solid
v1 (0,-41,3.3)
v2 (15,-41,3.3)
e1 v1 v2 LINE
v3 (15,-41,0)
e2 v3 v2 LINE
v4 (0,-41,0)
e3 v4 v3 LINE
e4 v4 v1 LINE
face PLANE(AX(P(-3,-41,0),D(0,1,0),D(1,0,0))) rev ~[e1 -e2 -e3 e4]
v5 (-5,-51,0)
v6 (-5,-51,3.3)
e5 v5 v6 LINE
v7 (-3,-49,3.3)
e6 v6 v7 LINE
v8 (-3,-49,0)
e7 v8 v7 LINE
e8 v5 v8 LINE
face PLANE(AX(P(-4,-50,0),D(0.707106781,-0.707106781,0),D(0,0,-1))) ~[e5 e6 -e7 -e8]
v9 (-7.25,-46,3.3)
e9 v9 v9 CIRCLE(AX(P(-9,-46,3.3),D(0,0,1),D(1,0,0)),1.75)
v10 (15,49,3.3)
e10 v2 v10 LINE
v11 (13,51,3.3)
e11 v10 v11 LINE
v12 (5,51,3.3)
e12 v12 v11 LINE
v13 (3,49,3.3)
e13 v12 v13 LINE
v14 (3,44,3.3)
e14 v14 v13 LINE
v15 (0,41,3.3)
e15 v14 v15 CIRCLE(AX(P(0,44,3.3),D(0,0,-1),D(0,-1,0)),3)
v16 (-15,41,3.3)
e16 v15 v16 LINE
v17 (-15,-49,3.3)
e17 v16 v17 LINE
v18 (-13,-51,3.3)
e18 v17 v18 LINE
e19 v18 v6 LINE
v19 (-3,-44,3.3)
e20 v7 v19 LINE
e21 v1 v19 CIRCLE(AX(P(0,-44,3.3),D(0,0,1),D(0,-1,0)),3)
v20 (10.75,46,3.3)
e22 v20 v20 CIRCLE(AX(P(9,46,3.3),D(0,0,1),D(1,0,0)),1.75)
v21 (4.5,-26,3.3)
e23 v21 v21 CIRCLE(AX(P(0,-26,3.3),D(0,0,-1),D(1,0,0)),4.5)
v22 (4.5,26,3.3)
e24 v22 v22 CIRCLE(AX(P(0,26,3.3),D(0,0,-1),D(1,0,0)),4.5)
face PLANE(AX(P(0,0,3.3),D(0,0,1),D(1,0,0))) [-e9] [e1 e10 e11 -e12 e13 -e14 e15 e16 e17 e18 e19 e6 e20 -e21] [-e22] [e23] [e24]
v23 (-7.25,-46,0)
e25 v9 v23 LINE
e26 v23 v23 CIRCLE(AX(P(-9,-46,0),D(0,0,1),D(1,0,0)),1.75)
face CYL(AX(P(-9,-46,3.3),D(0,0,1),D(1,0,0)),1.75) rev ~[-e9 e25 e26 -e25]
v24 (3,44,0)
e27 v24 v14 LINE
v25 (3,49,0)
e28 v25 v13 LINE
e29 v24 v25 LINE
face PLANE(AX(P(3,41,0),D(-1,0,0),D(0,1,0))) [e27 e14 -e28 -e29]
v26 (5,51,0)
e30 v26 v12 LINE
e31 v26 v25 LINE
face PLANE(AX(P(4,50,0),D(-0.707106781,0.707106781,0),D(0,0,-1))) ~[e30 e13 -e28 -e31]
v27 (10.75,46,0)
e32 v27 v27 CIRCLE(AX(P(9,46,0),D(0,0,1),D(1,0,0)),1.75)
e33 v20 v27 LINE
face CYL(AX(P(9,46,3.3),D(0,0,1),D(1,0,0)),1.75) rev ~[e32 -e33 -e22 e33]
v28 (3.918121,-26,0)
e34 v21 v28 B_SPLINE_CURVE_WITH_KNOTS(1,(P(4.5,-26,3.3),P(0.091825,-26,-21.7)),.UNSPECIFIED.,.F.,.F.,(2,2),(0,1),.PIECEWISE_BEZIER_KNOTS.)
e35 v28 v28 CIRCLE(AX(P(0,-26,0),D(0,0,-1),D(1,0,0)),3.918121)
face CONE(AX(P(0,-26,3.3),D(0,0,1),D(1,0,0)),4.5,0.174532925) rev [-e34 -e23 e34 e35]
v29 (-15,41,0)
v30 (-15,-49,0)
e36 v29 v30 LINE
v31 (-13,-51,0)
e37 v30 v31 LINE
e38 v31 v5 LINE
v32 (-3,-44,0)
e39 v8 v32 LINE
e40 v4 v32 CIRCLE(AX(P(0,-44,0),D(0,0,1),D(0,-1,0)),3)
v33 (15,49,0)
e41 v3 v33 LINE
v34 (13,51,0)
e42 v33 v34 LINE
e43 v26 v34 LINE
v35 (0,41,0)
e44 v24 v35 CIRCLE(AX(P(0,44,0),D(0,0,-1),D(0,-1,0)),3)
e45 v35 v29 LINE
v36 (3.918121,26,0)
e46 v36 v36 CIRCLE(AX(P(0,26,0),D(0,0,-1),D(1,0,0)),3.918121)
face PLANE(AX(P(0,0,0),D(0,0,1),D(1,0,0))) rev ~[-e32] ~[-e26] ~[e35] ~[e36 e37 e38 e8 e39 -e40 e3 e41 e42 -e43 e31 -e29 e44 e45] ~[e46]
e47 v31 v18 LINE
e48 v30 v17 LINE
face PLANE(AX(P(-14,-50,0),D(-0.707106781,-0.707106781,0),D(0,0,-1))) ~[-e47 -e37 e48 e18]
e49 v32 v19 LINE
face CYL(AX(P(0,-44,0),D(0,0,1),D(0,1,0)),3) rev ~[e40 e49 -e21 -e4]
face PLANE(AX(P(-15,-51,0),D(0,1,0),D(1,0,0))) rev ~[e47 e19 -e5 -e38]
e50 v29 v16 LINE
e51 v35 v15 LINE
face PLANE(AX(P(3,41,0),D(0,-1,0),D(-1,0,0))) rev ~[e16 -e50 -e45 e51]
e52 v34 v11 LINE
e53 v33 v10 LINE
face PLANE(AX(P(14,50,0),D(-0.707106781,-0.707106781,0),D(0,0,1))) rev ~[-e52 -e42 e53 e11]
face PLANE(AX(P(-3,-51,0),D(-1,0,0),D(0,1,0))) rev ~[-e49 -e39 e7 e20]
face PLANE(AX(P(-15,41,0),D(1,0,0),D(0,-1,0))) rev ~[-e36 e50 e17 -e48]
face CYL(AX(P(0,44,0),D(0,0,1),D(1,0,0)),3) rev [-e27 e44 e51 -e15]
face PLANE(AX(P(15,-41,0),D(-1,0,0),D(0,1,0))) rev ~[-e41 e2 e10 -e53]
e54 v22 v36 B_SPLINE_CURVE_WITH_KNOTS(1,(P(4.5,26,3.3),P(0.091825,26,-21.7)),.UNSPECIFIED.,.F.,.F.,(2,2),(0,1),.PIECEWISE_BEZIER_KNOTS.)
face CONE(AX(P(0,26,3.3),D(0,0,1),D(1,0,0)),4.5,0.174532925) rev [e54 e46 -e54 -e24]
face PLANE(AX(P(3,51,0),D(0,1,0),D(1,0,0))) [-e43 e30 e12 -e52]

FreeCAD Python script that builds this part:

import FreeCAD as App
import Part
import Sketcher


def edges_at(feature, points):
    """Names of the edges that pass closest to the given points."""
    edges = feature.Shape.Edges
    near = lambda p: min(range(len(edges)), key=lambda i: edges[i].distToShape(Part.Vertex(*p))[0])
    return sorted({f"Edge{near(p) + 1}" for p in points})


def add_polygon(sketch, points):
    """Adds a closed chain of lines whose ends are joined by coincident constraints."""
    first, n = sketch.GeometryCount, len(points)
    for a, b in zip(points, points[1:] + points[:1]):
        sketch.addGeometry(Part.LineSegment(App.Vector(*a, 0), App.Vector(*b, 0)), False)
    for i in range(n):
        sketch.addConstraint(Sketcher.Constraint("Coincident", first + i, 2, first + (i + 1) % n, 1))

doc = App.newDocument("Part")
body = doc.addObject("PartDesign::Body", "Body")

# Sketch on XY plane
sketch1 = body.newObject("Sketcher::SketchObject", "Sketch")
sketch1.AttachmentSupport = (doc.getObject("XY_Plane"), [""])
sketch1.MapMode = "FlatFace"
add_polygon(sketch1, [(15, -41), (15, 51), (3, 51), (3, 41), (-15, 41), (-15, -51), (-3, -51), (-3, -41)])  # lines 0-7
sketch1.addConstraint([
    Sketcher.Constraint("Vertical", 0),
    Sketcher.Constraint("Horizontal", 1),
    Sketcher.Constraint("Vertical", 2),
    Sketcher.Constraint("Horizontal", 3),
    Sketcher.Constraint("Vertical", 4),
    Sketcher.Constraint("Horizontal", 5),
    Sketcher.Constraint("Vertical", 6),
    Sketcher.Constraint("Horizontal", 7),
    Sketcher.Constraint("Symmetric", 0, 2, 4, 2, -1, 1),
    Sketcher.Constraint("Symmetric", 2, 2, 6, 2, -1, 1),
    Sketcher.Constraint("DistanceX", 1, 2, 1, 1, 12.0),
    Sketcher.Constraint("DistanceX", 3, 2, 3, 1, 18.0),
    Sketcher.Constraint("DistanceY", 0, 1, 0, 2, 92.0),
    Sketcher.Constraint("DistanceY", 2, 2, 2, 1, 10.0),
])
pad1 = body.newObject("PartDesign::Pad", "Pad")
pad1.Profile = sketch1
pad1.Length = 3.3
doc.recompute()

chamfer = body.newObject("PartDesign::Chamfer", "Chamfer")
chamfer.Base = (pad1, edges_at(pad1, [
    (15, 51, 1.65),
    (3, 51, 1.65),
    (-15, -51, 1.65),
    (-3, -51, 1.65),
]))
chamfer.Size = 2
doc.recompute()

fillet = body.newObject("PartDesign::Fillet", "Fillet")
fillet.Base = (chamfer, edges_at(chamfer, [(3, 41, 1.65)]))
fillet.Radius = 3
doc.recompute()

fillet2 = body.newObject("PartDesign::Fillet", "Fillet001")
fillet2.Base = (fillet, edges_at(fillet, [(-3, -41, 1.65)]))
fillet2.Radius = 3

# Sketch on XY plane
sketch2 = body.newObject("Sketcher::SketchObject", "Sketch001")
sketch2.AttachmentSupport = (doc.getObject("XY_Plane"), [""])
sketch2.MapMode = "FlatFace"
sketch2.AttachmentOffset = App.Placement(App.Vector(0, 0, 3.3), App.Rotation())
sketch2.addGeometry([
    Part.Circle(App.Vector(9, 46, 0), App.Vector(0, 0, 1), 1.8),
    Part.Circle(App.Vector(-9, -46, 0), App.Vector(0, 0, 1), 1.8),
], False)
sketch2.addConstraint([
    Sketcher.Constraint("Equal", 0, 1),
    Sketcher.Constraint("Symmetric", 0, 3, 1, 3, -1, 1),
    Sketcher.Constraint("Diameter", 0, 3.5),
    Sketcher.Constraint("DistanceX", -1, 1, 0, 3, 9.0),
    Sketcher.Constraint("DistanceY", -1, 1, 0, 3, 46.0),
])
pocket1 = body.newObject("PartDesign::Pocket", "Pocket")
pocket1.Profile = sketch2
pocket1.Length = 25

# Sketch on XY plane
sketch3 = body.newObject("Sketcher::SketchObject", "Sketch002")
sketch3.AttachmentSupport = (doc.getObject("XY_Plane"), [""])
sketch3.MapMode = "FlatFace"
sketch3.AttachmentOffset = App.Placement(App.Vector(0, 0, 3.3), App.Rotation())
sketch3.addGeometry([
    Part.Circle(App.Vector(0, 26, 0), App.Vector(0, 0, 1), 2.5),
    Part.Circle(App.Vector(0, -26, 0), App.Vector(0, 0, 1), 2.5),
], False)
sketch3.addConstraint([
    Sketcher.Constraint("Equal", 0, 1),
    Sketcher.Constraint("Symmetric", 0, 3, 1, 3, -1, 1),
    Sketcher.Constraint("PointOnObject", 0, 3, -2),
    Sketcher.Constraint("Diameter", 0, 5.0),
    Sketcher.Constraint("DistanceY", -1, 1, 0, 3, 26.0),
])
pocket2 = body.newObject("PartDesign::Pocket", "Pocket001")
pocket2.Profile = sketch3
pocket2.Length = 25

# Sketch on XY plane
sketch4 = body.newObject("Sketcher::SketchObject", "Sketch003")
sketch4.AttachmentSupport = (doc.getObject("XY_Plane"), [""])
sketch4.MapMode = "FlatFace"
sketch4.AttachmentOffset = App.Placement(App.Vector(0, 0, 3.3), App.Rotation())
sketch4.addGeometry([
    Part.Circle(App.Vector(0, 26, 0), App.Vector(0, 0, 1), 4.5),
    Part.Circle(App.Vector(0, -26, 0), App.Vector(0, 0, 1), 4.5),
], False)
sketch4.addConstraint([
    Sketcher.Constraint("Equal", 0, 1),
    Sketcher.Constraint("Symmetric", 0, 3, 1, 3, -1, 1),
    Sketcher.Constraint("PointOnObject", 0, 3, -2),
    Sketcher.Constraint("Diameter", 0, 9.0),
    Sketcher.Constraint("DistanceY", -1, 1, 0, 3, 26.0),
])
pocket3 = body.newObject("PartDesign::Pocket", "Pocket002")
pocket3.Profile = sketch4
pocket3.Length = 25
pocket3.TaperAngle = -10

doc.recompute()
